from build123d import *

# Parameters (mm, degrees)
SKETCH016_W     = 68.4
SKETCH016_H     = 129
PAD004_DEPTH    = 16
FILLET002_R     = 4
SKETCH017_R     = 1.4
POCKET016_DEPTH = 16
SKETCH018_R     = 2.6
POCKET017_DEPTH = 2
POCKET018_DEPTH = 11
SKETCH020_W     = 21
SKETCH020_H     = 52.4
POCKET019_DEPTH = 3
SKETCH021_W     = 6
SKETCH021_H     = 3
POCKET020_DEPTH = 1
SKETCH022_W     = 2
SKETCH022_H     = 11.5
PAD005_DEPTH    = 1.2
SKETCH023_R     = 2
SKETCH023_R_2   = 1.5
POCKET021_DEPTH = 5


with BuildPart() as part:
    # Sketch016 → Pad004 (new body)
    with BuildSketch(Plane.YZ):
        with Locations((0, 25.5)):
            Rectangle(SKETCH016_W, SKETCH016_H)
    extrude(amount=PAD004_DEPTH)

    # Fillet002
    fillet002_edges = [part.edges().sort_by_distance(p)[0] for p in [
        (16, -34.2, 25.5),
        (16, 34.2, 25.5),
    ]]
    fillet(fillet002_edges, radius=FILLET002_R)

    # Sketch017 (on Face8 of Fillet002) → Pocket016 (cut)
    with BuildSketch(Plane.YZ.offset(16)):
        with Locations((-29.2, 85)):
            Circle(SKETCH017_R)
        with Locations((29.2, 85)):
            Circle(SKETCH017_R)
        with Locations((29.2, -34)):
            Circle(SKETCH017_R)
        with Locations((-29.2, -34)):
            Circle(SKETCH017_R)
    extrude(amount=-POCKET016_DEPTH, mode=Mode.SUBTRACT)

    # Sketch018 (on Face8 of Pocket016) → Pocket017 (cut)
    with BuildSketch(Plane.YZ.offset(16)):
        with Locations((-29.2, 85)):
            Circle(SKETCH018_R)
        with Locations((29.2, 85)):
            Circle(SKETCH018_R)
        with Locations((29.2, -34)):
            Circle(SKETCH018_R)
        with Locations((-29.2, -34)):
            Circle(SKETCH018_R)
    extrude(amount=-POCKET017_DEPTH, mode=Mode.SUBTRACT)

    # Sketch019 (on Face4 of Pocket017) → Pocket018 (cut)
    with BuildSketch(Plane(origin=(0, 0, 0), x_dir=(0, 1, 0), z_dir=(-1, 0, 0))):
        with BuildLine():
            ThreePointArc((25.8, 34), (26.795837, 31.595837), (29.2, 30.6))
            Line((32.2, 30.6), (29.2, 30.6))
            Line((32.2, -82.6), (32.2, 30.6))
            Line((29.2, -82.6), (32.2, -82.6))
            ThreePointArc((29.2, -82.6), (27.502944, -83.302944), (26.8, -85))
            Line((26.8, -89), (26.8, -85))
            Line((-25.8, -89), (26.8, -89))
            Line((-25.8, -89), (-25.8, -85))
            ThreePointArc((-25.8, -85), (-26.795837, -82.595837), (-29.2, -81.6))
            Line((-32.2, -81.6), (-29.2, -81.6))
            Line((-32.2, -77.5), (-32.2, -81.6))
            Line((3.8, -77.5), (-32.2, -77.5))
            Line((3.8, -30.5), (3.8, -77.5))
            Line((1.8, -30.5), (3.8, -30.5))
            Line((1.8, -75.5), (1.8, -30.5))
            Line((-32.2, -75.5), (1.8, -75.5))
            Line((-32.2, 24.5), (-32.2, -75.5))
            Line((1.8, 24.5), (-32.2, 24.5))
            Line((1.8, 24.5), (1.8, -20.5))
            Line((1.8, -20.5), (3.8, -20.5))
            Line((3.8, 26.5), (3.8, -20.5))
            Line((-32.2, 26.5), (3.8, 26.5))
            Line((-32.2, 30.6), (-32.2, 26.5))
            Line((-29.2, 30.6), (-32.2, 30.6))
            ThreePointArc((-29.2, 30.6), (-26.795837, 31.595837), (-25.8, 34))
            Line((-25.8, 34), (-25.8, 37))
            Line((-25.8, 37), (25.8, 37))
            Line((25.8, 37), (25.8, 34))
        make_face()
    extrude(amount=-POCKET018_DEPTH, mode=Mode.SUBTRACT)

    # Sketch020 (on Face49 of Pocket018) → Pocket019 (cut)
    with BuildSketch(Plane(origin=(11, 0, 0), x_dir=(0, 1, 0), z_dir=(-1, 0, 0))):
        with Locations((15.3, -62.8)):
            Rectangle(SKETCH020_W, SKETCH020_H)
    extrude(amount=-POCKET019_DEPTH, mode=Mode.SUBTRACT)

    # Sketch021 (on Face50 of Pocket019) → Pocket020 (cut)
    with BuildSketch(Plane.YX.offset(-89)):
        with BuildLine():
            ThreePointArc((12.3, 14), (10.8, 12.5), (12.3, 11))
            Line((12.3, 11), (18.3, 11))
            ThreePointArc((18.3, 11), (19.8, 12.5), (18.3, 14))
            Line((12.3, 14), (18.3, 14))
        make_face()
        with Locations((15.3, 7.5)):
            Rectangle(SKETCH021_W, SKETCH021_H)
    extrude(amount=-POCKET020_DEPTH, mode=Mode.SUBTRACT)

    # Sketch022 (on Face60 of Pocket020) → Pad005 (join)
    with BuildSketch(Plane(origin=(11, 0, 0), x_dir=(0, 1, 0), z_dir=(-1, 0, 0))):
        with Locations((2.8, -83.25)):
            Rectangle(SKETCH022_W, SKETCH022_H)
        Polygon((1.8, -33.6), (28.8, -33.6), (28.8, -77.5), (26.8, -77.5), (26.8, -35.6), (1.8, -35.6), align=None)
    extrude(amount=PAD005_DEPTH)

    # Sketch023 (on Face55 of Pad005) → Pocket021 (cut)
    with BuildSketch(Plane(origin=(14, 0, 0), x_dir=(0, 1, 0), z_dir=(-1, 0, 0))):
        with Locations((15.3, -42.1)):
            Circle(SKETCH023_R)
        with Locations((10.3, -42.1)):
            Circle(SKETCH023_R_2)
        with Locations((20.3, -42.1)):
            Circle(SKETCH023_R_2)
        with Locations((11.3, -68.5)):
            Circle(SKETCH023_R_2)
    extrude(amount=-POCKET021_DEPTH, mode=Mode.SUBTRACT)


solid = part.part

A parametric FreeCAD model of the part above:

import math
import FreeCAD as App
import Part
import Sketcher

V = App.Vector
Q = App.Units.Quantity


def edges_at(feature, points):
    """Names of the edges that pass closest to the given points."""
    edges = feature.Shape.Edges
    near = lambda p: min(range(len(edges)), key=lambda i: edges[i].distToShape(Part.Vertex(*p))[0])
    return sorted({f"Edge{near(p) + 1}" for p in points})

doc = App.newDocument("Part")
body = doc.addObject("PartDesign::Body", "Body")

# Sketch on YZ plane
sketch1 = body.newObject("Sketcher::SketchObject", "Sketch")
sketch1.AttachmentSupport = (doc.getObject("YZ_Plane"), [""])
sketch1.MapMode = "FlatFace"
sketch1.addGeometry([
    Part.LineSegment(V(-34, 90, 0), V(-34, -39, 0)),
    Part.LineSegment(V(-34, -39, 0), V(34, -39, 0)),
    Part.LineSegment(V(34, -39, 0), V(34, 90, 0)),
    Part.LineSegment(V(34, 90, 0), V(-34, 90, 0)),
], False)
sketch1.addConstraint([
    Sketcher.Constraint("Coincident", 0, 2, 1, 1),
    Sketcher.Constraint("Coincident", 1, 2, 2, 1),
    Sketcher.Constraint("Coincident", 2, 2, 3, 1),
    Sketcher.Constraint("Coincident", 3, 2, 0, 1),
    Sketcher.Constraint("Vertical", 0),
    Sketcher.Constraint("Horizontal", 1),
    Sketcher.Constraint("Vertical", 2),
    Sketcher.Constraint("Horizontal", 3),
    Sketcher.Constraint("DistanceY", 0, 2, 0, 1, Q("129 mm")),
    Sketcher.Constraint("DistanceX", 1, 1, 1, 2, Q("68.4 mm")),
    Sketcher.Constraint("DistanceY", 0, 2, -1, 1, Q("39 mm")),
    Sketcher.Constraint("DistanceX", 0, 2, -1, 1, Q("34.2 mm")),
])
pad1 = body.newObject("PartDesign::Pad", "Pad")
pad1.Profile = sketch1
pad1.Length = 16
doc.recompute()

fillet = body.newObject("PartDesign::Fillet", "Fillet")
fillet.Base = (pad1, edges_at(pad1, [(16, -34.2, 25.5), (16, 34.2, 25.5)]))
fillet.Radius = 4

# Sketch on YZ plane
sketch2 = body.newObject("Sketcher::SketchObject", "Sketch001")
sketch2.AttachmentSupport = (doc.getObject("YZ_Plane"), [""])
sketch2.MapMode = "FlatFace"
sketch2.AttachmentOffset = App.Placement(V(0, 0, 16), App.Rotation())
sketch2.addGeometry([
    Part.Circle(V(-29.2, 85, 0), V(0, 0, 1), 1.4),
    Part.Circle(V(29.2, 85, 0), V(0, 0, 1), 1.4),
    Part.Circle(V(29.2, -34, 0), V(0, 0, 1), 1.4),
    Part.Circle(V(-29.2, -34, 0), V(0, 0, 1), 1.4),
], False)
sketch2.addConstraint([
    Sketcher.Constraint("Equal", 0, 1),
    Sketcher.Constraint("Equal", 1, 2),
    Sketcher.Constraint("Equal", 2, 3),
    Sketcher.Constraint("Symmetric", 0, 3, 1, 3, -2),
    Sketcher.Constraint("Symmetric", 2, 3, 3, 3, -2),
    Sketcher.Constraint("Vertical", 1, 3, 2, 3),
    Sketcher.Constraint("Diameter", 0, Q("2.8 mm")),
    Sketcher.Constraint("DistanceY", -1, 1, 0, 3, Q("85 mm")),
    Sketcher.Constraint("DistanceY", 2, 3, -1, 1, Q("34 mm")),
    Sketcher.Constraint("DistanceX", 0, 3, -1, 1, Q("29.2 mm")),
])
pocket1 = body.newObject("PartDesign::Pocket", "Pocket")
pocket1.Profile = sketch2
pocket1.Length = 16

# Sketch on YZ plane
sketch3 = body.newObject("Sketcher::SketchObject", "Sketch002")
sketch3.AttachmentSupport = (doc.getObject("YZ_Plane"), [""])
sketch3.MapMode = "FlatFace"
sketch3.AttachmentOffset = App.Placement(V(0, 0, 16), App.Rotation())
sketch3.addGeometry([
    Part.Circle(V(-29.2, 85, 0), V(0, 0, 1), 2.6),
    Part.Circle(V(29.2, 85, 0), V(0, 0, 1), 2.6),
    Part.Circle(V(29.2, -34, 0), V(0, 0, 1), 2.6),
    Part.Circle(V(-29.2, -34, 0), V(0, 0, 1), 2.6),
], False)
sketch3.addConstraint([
    Sketcher.Constraint("Equal", 0, 1),
    Sketcher.Constraint("Equal", 1, 2),
    Sketcher.Constraint("Equal", 2, 3),
    Sketcher.Constraint("Symmetric", 0, 3, 1, 3, -2),
    Sketcher.Constraint("Symmetric", 2, 3, 3, 3, -2),
    Sketcher.Constraint("Vertical", 1, 3, 2, 3),
    Sketcher.Constraint("Diameter", 0, Q("5.2 mm")),
    Sketcher.Constraint("DistanceY", -1, 1, 0, 3, Q("85 mm")),
    Sketcher.Constraint("DistanceY", 2, 3, -1, 1, Q("34 mm")),
    Sketcher.Constraint("DistanceX", 0, 3, -1, 1, Q("29.2 mm")),
])
pocket2 = body.newObject("PartDesign::Pocket", "Pocket001")
pocket2.Profile = sketch3
pocket2.Length = 2

# Sketch on YZ plane
sketch4 = body.newObject("Sketcher::SketchObject", "Sketch003")
sketch4.AttachmentSupport = (doc.getObject("YZ_Plane"), [""])
sketch4.MapMode = "FlatFace"
sketch4.addGeometry([
    Part.ArcOfCircle(Part.Circle(V(29.2, -34, 0), V(0, 0, 1), 3.4), math.radians(90), math.radians(180)),  # 0
    Part.LineSegment(V(25.8, -34, 0), V(25.8, -37, 0)),  # 1
    Part.LineSegment(V(25.8, -37, 0), V(-25.8, -37, 0)),  # 2
    Part.LineSegment(V(-25.8, -37, 0), V(-25.8, -34, 0)),  # 3
    Part.ArcOfCircle(Part.Circle(V(-29.2, -34, 0), V(0, 0, 1), 3.4), math.radians(0), math.radians(90)),  # 4
    Part.LineSegment(V(-29.2, -30.6, 0), V(-32.2, -30.6, 0)),  # 5
    Part.LineSegment(V(-32.2, -30.6, 0), V(-32.2, -26.5, 0)),  # 6
    Part.LineSegment(V(-32.2, -26.5, 0), V(3.8, -26.5, 0)),  # 7
    Part.LineSegment(V(3.8, -26.5, 0), V(3.8, 20.5, 0)),  # 8
    Part.LineSegment(V(3.8, 20.5, 0), V(1.8, 20.5, 0)),  # 9
    Part.LineSegment(V(1.8, 20.5, 0), V(1.8, -24.5, 0)),  # 10
    Part.LineSegment(V(1.8, -24.5, 0), V(-32.2, -24.5, 0)),  # 11
    Part.LineSegment(V(-32.2, -24.5, 0), V(-32.2, 75.5, 0)),  # 12
    Part.LineSegment(V(-32.2, 75.5, 0), V(1.8, 75.5, 0)),  # 13
    Part.LineSegment(V(1.8, 75.5, 0), V(1.8, 30.5, 0)),  # 14
    Part.LineSegment(V(1.8, 30.5, 0), V(3.8, 30.5, 0)),  # 15
    Part.LineSegment(V(3.8, 30.5, 0), V(3.8, 77.5, 0)),  # 16
    Part.LineSegment(V(3.8, 77.5, 0), V(-32.2, 77.5, 0)),  # 17
    Part.LineSegment(V(-32.2, 77.5, 0), V(-32.2, 81.6, 0)),  # 18
    Part.LineSegment(V(-32.2, 81.6, 0), V(-29.2, 81.6, 0)),  # 19
    Part.ArcOfCircle(Part.Circle(V(-29.2, 85, 0), V(0, 0, 1), 3.4), math.radians(-90), math.radians(0)),  # 20
    Part.LineSegment(V(-25.8, 85, 0), V(-25.8, 89, 0)),  # 21
    Part.LineSegment(V(-25.8, 89, 0), V(26.8, 89, 0)),  # 22
    Part.LineSegment(V(26.8, 89, 0), V(26.8, 85, 0)),  # 23
    Part.ArcOfCircle(Part.Circle(V(29.2, 85, 0), V(0, 0, 1), 2.4), math.radians(-180), math.radians(-90)),  # 24
    Part.LineSegment(V(29.2, 82.6, 0), V(32.2, 82.6, 0)),  # 25
    Part.LineSegment(V(32.2, 82.6, 0), V(32.2, -30.6, 0)),  # 26
    Part.LineSegment(V(32.2, -30.6, 0), V(29.2, -30.6, 0)),  # 27
], False)
sketch4.addConstraint([
    Sketcher.Constraint("Tangent", 0, 2, 1, 1),
    Sketcher.Constraint("Coincident", 1, 2, 2, 1),
    Sketcher.Constraint("Coincident", 2, 2, 3, 1),
    Sketcher.Constraint("Tangent", 3, 2, 4, 1),
    Sketcher.Constraint("Tangent", 4, 2, 5, 1),
    Sketcher.Constraint("Coincident", 5, 2, 6, 1),
    Sketcher.Constraint("Coincident", 6, 2, 7, 1),
    Sketcher.Constraint("Coincident", 7, 2, 8, 1),
    Sketcher.Constraint("Coincident", 8, 2, 9, 1),
    Sketcher.Constraint("Coincident", 9, 2, 10, 1),
    Sketcher.Constraint("Coincident", 10, 2, 11, 1),
    Sketcher.Constraint("Coincident", 11, 2, 12, 1),
    Sketcher.Constraint("Coincident", 12, 2, 13, 1),
    Sketcher.Constraint("Coincident", 13, 2, 14, 1),
    Sketcher.Constraint("Coincident", 14, 2, 15, 1),
    Sketcher.Constraint("Coincident", 15, 2, 16, 1),
    Sketcher.Constraint("Coincident", 16, 2, 17, 1),
    Sketcher.Constraint("Coincident", 17, 2, 18, 1),
    Sketcher.Constraint("Coincident", 18, 2, 19, 1),
    Sketcher.Constraint("Tangent", 19, 2, 20, 1),
    Sketcher.Constraint("Tangent", 20, 2, 21, 1),
    Sketcher.Constraint("Coincident", 21, 2, 22, 1),
    Sketcher.Constraint("Coincident", 22, 2, 23, 1),
    Sketcher.Constraint("Tangent", 23, 2, 24, 1),
    Sketcher.Constraint("Tangent", 24, 2, 25, 1),
    Sketcher.Constraint("Coincident", 25, 2, 26, 1),
    Sketcher.Constraint("Coincident", 26, 2, 27, 1),
    Sketcher.Constraint("Tangent", 27, 2, 0, 1),
    Sketcher.Constraint("Vertical", 1),
    Sketcher.Constraint("Horizontal", 2),
    Sketcher.Constraint("Vertical", 3),
    Sketcher.Constraint("Horizontal", 5),
    Sketcher.Constraint("Vertical", 6),
    Sketcher.Constraint("Horizontal", 7),
    Sketcher.Constraint("Vertical", 8),
    Sketcher.Constraint("Horizontal", 9),
    Sketcher.Constraint("Vertical", 10),
    Sketcher.Constraint("Horizontal", 11),
    Sketcher.Constraint("Vertical", 12),
    Sketcher.Constraint("Horizontal", 13),
    Sketcher.Constraint("Vertical", 14),
    Sketcher.Constraint("Horizontal", 15),
    Sketcher.Constraint("Vertical", 16),
    Sketcher.Constraint("Horizontal", 17),
    Sketcher.Constraint("Vertical", 18),
    Sketcher.Constraint("Horizontal", 19),
    Sketcher.Constraint("Vertical", 21),
    Sketcher.Constraint("Horizontal", 22),
    Sketcher.Constraint("Vertical", 23),
    Sketcher.Constraint("Horizontal", 25),
    Sketcher.Constraint("Vertical", 26),
    Sketcher.Constraint("Horizontal", 27),
    Sketcher.Constraint("Equal", 0, 4),
    Sketcher.Constraint("Equal", 4, 20),
    Sketcher.Constraint("Symmetric", 0, 3, 4, 3, -2),
    Sketcher.Constraint("Symmetric", 20, 3, 24, 3, -2),
    Sketcher.Constraint("Vertical", 4, 3, 20, 3),
    Sketcher.Constraint("Vertical", 6, 2, 11, 2),
    Sketcher.Constraint("Vertical", 10, 2, 13, 2),
    Sketcher.Constraint("Vertical", 8, 2, 15, 2),
    Sketcher.Constraint("Vertical", 12, 2, 17, 2),
    Sketcher.Constraint("Equal", 19, 25),
    Sketcher.Constraint("Equal", 27, 1),
    Sketcher.Constraint("Equal", 10, 14),
    Sketcher.Constraint("Equal", 8, 16),
    Sketcher.Constraint("Equal", 6, 18),
    Sketcher.Constraint("Radius", 0, Q("3.4 mm")),
    Sketcher.Constraint("Radius", 24, Q("2.400001 mm")),
    Sketcher.Constraint("DistanceX", 5, 2, 5, 1, Q("3 mm")),
    Sketcher.Constraint("DistanceX", 7, 1, 7, 2, Q("36 mm")),
    Sketcher.Constraint("DistanceX", 9, 2, 9, 1, Q("2 mm")),
    Sketcher.Constraint("DistanceY", 8, 1, 8, 2, Q("47 mm")),
    Sketcher.Constraint("DistanceY", 10, 2, 10, 1, Q("45 mm")),
    Sketcher.Constraint("DistanceY", 12, 1, 12, 2, Q("100 mm")),
    Sketcher.Constraint("DistanceY", 21, 1, 21, 2, Q("4 mm")),
    Sketcher.Constraint("DistanceX", 2, 2, 2, 1, Q("51.6 mm")),
    Sketcher.Constraint("DistanceY", 6, 1, 6, 2, Q("4.1 mm")),
    Sketcher.Constraint("DistanceY", 0, 3, -1, 1, Q("34 mm")),
])
pocket3 = body.newObject("PartDesign::Pocket", "Pocket002")
pocket3.Profile = sketch4
pocket3.Length = 11
pocket3.Reversed = True

# Sketch on YZ plane
sketch5 = body.newObject("Sketcher::SketchObject", "Sketch004")
sketch5.AttachmentSupport = (doc.getObject("YZ_Plane"), [""])
sketch5.MapMode = "FlatFace"
sketch5.AttachmentOffset = App.Placement(V(0, 0, 11), App.Rotation())
sketch5.addGeometry([
    Part.LineSegment(V(5, 37, 0), V(5, 89, 0)),
    Part.LineSegment(V(5, 89, 0), V(26, 89, 0)),
    Part.LineSegment(V(26, 89, 0), V(26, 37, 0)),
    Part.LineSegment(V(26, 37, 0), V(5, 37, 0)),
], False)
sketch5.addConstraint([
    Sketcher.Constraint("Coincident", 0, 2, 1, 1),
    Sketcher.Constraint("Coincident", 1, 2, 2, 1),
    Sketcher.Constraint("Coincident", 2, 2, 3, 1),
    Sketcher.Constraint("Coincident", 3, 2, 0, 1),
    Sketcher.Constraint("Vertical", 0),
    Sketcher.Constraint("Horizontal", 1),
    Sketcher.Constraint("Vertical", 2),
    Sketcher.Constraint("Horizontal", 3),
    Sketcher.Constraint("DistanceX", 1, 1, 1, 2, Q("21 mm")),
    Sketcher.Constraint("DistanceY", 0, 1, 0, 2, Q("52.4 mm")),
    Sketcher.Constraint("DistanceY", -1, 1, 0, 2, Q("89 mm")),
    Sketcher.Constraint("DistanceX", -1, 1, 0, 2, Q("4.8 mm")),
])
pocket4 = body.newObject("PartDesign::Pocket", "Pocket003")
pocket4.Profile = sketch5
pocket4.Length = 3
pocket4.Reversed = True

# Sketch on XY plane
sketch6 = body.newObject("Sketcher::SketchObject", "Sketch005")
sketch6.AttachmentSupport = (doc.getObject("XY_Plane"), [""])
sketch6.MapMode = "FlatFace"
sketch6.AttachmentOffset = App.Placement(V(0, 0, 89), App.Rotation())
sketch6.addGeometry([
    Part.ArcOfCircle(Part.Circle(V(12.5, 12.3, 0), V(0, 0, 1), 1.5), math.radians(180), math.radians(360)),  # 0
    Part.LineSegment(V(11, 12.3, 0), V(11, 18.3, 0)),  # 1
    Part.ArcOfCircle(Part.Circle(V(12.5, 18.3, 0), V(0, 0, 1), 1.5), math.radians(0), math.radians(180)),  # 2
    Part.LineSegment(V(14, 18.3, 0), V(14, 12.3, 0)),  # 3
    Part.LineSegment(V(9, 12.3, 0), V(6, 12.3, 0)),  # 4
    Part.LineSegment(V(6, 12.3, 0), V(6, 18.3, 0)),  # 5
    Part.LineSegment(V(6, 18.3, 0), V(9, 18.3, 0)),  # 6
    Part.LineSegment(V(9, 18.3, 0), V(9, 12.3, 0)),  # 7
], False)
sketch6.addConstraint([
    Sketcher.Constraint("Tangent", 0, 1, 1, 1),
    Sketcher.Constraint("Tangent", 1, 2, 2, 2),
    Sketcher.Constraint("Tangent", 2, 1, 3, 1),
    Sketcher.Constraint("Tangent", 3, 2, 0, 2),
    Sketcher.Constraint("Coincident", 4, 2, 5, 1),
    Sketcher.Constraint("Coincident", 5, 2, 6, 1),
    Sketcher.Constraint("Coincident", 6, 2, 7, 1),
    Sketcher.Constraint("Coincident", 7, 2, 4, 1),
    Sketcher.Constraint("Vertical", 1),
    Sketcher.Constraint("Vertical", 3),
    Sketcher.Constraint("Horizontal", 4),
    Sketcher.Constraint("Vertical", 5),
    Sketcher.Constraint("Horizontal", 6),
    Sketcher.Constraint("Vertical", 7),
    Sketcher.Constraint("Horizontal", 3, 2, 4, 2),
    Sketcher.Constraint("Horizontal", 2, 1, 5, 2),
    Sketcher.Constraint("Radius", 0, Q("1.5 mm")),
    Sketcher.Constraint("DistanceX", 4, 2, 4, 1, Q("3 mm")),
    Sketcher.Constraint("DistanceY", 1, 1, 1, 2, Q("6 mm")),
    Sketcher.Constraint("DistanceX", -1, 1, 0, 1, Q("11 mm")),
    Sketcher.Constraint("DistanceX", -1, 1, 4, 2, Q("6 mm")),
    Sketcher.Constraint("DistanceY", -1, 1, 0, 3, Q("12.3 mm")),
])
pocket5 = body.newObject("PartDesign::Pocket", "Pocket004")
pocket5.Profile = sketch6
pocket5.Length = 1
pocket5.Reversed = True

# Sketch on YZ plane
sketch7 = body.newObject("Sketcher::SketchObject", "Sketch006")
sketch7.AttachmentSupport = (doc.getObject("YZ_Plane"), [""])
sketch7.MapMode = "FlatFace"
sketch7.AttachmentOffset = App.Placement(V(0, 0, 11), App.Rotation())
sketch7.addGeometry([
    Part.LineSegment(V(1.8, 77.5, 0), V(1.8, 89, 0)),  # 0
    Part.LineSegment(V(1.8, 89, 0), V(3.8, 89, 0)),  # 1
    Part.LineSegment(V(3.8, 89, 0), V(3.8, 77.5, 0)),  # 2
    Part.LineSegment(V(3.8, 77.5, 0), V(1.8, 77.5, 0)),  # 3
    Part.LineSegment(V(28.8, 33.6, 0), V(1.8, 33.6, 0)),  # 4
    Part.LineSegment(V(1.8, 33.6, 0), V(1.8, 35.6, 0)),  # 5
    Part.LineSegment(V(1.8, 35.6, 0), V(26.8, 35.6, 0)),  # 6
    Part.LineSegment(V(26.8, 35.6, 0), V(26.8, 77.5, 0)),  # 7
    Part.LineSegment(V(26.8, 77.5, 0), V(28.8, 77.5, 0)),  # 8
    Part.LineSegment(V(28.8, 77.5, 0), V(28.8, 33.6, 0)),  # 9
], False)
sketch7.addConstraint([
    Sketcher.Constraint("Coincident", 0, 2, 1, 1),
    Sketcher.Constraint("Coincident", 1, 2, 2, 1),
    Sketcher.Constraint("Coincident", 2, 2, 3, 1),
    Sketcher.Constraint("Coincident", 3, 2, 0, 1),
    Sketcher.Constraint("Coincident", 4, 2, 5, 1),
    Sketcher.Constraint("Coincident", 5, 2, 6, 1),
    Sketcher.Constraint("Coincident", 6, 2, 7, 1),
    Sketcher.Constraint("Coincident", 7, 2, 8, 1),
    Sketcher.Constraint("Coincident", 8, 2, 9, 1),
    Sketcher.Constraint("Coincident", 9, 2, 4, 1),
    Sketcher.Constraint("Vertical", 0),
    Sketcher.Constraint("Horizontal", 1),
    Sketcher.Constraint("Vertical", 2),
    Sketcher.Constraint("Horizontal", 3),
    Sketcher.Constraint("Horizontal", 4),
    Sketcher.Constraint("Vertical", 5),
    Sketcher.Constraint("Horizontal", 6),
    Sketcher.Constraint("Vertical", 7),
    Sketcher.Constraint("Horizontal", 8),
    Sketcher.Constraint("Vertical", 9),
    Sketcher.Constraint("Horizontal", 3, 2, 7, 2),
    Sketcher.Constraint("Vertical", 3, 2, 4, 2),
    Sketcher.Constraint("Equal", 3, 8),
    Sketcher.Constraint("Equal", 8, 5),
    Sketcher.Constraint("DistanceX", 1, 1, 1, 2, Q("2 mm")),
    Sketcher.Constraint("DistanceX", 4, 2, 4, 1, Q("27 mm")),
    Sketcher.Constraint("DistanceY", 0, 1, 0, 2, Q("11.5 mm")),
    Sketcher.Constraint("DistanceY", 7, 1, 7, 2, Q("41.9 mm")),
    Sketcher.Constraint("DistanceY", -1, 1, 0, 2, Q("89 mm")),
    Sketcher.Constraint("DistanceX", -1, 1, 0, 2, Q("1.8 mm")),
])
pad2 = body.newObject("PartDesign::Pad", "Pad001")
pad2.Profile = sketch7
pad2.Length = 1.2
pad2.Reversed = True

# Sketch on YZ plane
sketch8 = body.newObject("Sketcher::SketchObject", "Sketch007")
sketch8.AttachmentSupport = (doc.getObject("YZ_Plane"), [""])
sketch8.MapMode = "FlatFace"
sketch8.AttachmentOffset = App.Placement(V(0, 0, 14), App.Rotation())
sketch8.addGeometry([
    Part.Circle(V(15.3, 42.1, 0), V(0, 0, 1), 2),
    Part.Circle(V(10.3, 42.1, 0), V(0, 0, 1), 1.5),
    Part.Circle(V(20.3, 42.1, 0), V(0, 0, 1), 1.5),
    Part.Circle(V(11.3, 68.5, 0), V(0, 0, 1), 1.5),
], False)
sketch8.addConstraint([
    Sketcher.Constraint("Equal", 1, 2),
    Sketcher.Constraint("Equal", 2, 3),
    Sketcher.Constraint("Horizontal", 0, 3, 1, 3),
    Sketcher.Constraint("Horizontal", 1, 3, 2, 3),
    Sketcher.Constraint("Diameter", 0, Q("4 mm")),
    Sketcher.Constraint("Diameter", 1, Q("3 mm")),
    Sketcher.Constraint("DistanceX", 1, 3, 0, 3, Q("5 mm")),
    Sketcher.Constraint("DistanceX", 0, 3, 2, 3, Q("5 mm")),
    Sketcher.Constraint("DistanceX", 1, 3, 3, 3, Q("1 mm")),
    Sketcher.Constraint("DistanceX", -1, 1, 0, 3, Q("15.3 mm")),
    Sketcher.Constraint("DistanceY", -1, 1, 0, 3, Q("42.1 mm")),
    Sketcher.Constraint("DistanceY", -1, 1, 3, 3, Q("68.5 mm")),
])
pocket6 = body.newObject("PartDesign::Pocket", "Pocket005")
pocket6.Profile = sketch8
pocket6.Length = 5
pocket6.Reversed = True

doc.recompute()
